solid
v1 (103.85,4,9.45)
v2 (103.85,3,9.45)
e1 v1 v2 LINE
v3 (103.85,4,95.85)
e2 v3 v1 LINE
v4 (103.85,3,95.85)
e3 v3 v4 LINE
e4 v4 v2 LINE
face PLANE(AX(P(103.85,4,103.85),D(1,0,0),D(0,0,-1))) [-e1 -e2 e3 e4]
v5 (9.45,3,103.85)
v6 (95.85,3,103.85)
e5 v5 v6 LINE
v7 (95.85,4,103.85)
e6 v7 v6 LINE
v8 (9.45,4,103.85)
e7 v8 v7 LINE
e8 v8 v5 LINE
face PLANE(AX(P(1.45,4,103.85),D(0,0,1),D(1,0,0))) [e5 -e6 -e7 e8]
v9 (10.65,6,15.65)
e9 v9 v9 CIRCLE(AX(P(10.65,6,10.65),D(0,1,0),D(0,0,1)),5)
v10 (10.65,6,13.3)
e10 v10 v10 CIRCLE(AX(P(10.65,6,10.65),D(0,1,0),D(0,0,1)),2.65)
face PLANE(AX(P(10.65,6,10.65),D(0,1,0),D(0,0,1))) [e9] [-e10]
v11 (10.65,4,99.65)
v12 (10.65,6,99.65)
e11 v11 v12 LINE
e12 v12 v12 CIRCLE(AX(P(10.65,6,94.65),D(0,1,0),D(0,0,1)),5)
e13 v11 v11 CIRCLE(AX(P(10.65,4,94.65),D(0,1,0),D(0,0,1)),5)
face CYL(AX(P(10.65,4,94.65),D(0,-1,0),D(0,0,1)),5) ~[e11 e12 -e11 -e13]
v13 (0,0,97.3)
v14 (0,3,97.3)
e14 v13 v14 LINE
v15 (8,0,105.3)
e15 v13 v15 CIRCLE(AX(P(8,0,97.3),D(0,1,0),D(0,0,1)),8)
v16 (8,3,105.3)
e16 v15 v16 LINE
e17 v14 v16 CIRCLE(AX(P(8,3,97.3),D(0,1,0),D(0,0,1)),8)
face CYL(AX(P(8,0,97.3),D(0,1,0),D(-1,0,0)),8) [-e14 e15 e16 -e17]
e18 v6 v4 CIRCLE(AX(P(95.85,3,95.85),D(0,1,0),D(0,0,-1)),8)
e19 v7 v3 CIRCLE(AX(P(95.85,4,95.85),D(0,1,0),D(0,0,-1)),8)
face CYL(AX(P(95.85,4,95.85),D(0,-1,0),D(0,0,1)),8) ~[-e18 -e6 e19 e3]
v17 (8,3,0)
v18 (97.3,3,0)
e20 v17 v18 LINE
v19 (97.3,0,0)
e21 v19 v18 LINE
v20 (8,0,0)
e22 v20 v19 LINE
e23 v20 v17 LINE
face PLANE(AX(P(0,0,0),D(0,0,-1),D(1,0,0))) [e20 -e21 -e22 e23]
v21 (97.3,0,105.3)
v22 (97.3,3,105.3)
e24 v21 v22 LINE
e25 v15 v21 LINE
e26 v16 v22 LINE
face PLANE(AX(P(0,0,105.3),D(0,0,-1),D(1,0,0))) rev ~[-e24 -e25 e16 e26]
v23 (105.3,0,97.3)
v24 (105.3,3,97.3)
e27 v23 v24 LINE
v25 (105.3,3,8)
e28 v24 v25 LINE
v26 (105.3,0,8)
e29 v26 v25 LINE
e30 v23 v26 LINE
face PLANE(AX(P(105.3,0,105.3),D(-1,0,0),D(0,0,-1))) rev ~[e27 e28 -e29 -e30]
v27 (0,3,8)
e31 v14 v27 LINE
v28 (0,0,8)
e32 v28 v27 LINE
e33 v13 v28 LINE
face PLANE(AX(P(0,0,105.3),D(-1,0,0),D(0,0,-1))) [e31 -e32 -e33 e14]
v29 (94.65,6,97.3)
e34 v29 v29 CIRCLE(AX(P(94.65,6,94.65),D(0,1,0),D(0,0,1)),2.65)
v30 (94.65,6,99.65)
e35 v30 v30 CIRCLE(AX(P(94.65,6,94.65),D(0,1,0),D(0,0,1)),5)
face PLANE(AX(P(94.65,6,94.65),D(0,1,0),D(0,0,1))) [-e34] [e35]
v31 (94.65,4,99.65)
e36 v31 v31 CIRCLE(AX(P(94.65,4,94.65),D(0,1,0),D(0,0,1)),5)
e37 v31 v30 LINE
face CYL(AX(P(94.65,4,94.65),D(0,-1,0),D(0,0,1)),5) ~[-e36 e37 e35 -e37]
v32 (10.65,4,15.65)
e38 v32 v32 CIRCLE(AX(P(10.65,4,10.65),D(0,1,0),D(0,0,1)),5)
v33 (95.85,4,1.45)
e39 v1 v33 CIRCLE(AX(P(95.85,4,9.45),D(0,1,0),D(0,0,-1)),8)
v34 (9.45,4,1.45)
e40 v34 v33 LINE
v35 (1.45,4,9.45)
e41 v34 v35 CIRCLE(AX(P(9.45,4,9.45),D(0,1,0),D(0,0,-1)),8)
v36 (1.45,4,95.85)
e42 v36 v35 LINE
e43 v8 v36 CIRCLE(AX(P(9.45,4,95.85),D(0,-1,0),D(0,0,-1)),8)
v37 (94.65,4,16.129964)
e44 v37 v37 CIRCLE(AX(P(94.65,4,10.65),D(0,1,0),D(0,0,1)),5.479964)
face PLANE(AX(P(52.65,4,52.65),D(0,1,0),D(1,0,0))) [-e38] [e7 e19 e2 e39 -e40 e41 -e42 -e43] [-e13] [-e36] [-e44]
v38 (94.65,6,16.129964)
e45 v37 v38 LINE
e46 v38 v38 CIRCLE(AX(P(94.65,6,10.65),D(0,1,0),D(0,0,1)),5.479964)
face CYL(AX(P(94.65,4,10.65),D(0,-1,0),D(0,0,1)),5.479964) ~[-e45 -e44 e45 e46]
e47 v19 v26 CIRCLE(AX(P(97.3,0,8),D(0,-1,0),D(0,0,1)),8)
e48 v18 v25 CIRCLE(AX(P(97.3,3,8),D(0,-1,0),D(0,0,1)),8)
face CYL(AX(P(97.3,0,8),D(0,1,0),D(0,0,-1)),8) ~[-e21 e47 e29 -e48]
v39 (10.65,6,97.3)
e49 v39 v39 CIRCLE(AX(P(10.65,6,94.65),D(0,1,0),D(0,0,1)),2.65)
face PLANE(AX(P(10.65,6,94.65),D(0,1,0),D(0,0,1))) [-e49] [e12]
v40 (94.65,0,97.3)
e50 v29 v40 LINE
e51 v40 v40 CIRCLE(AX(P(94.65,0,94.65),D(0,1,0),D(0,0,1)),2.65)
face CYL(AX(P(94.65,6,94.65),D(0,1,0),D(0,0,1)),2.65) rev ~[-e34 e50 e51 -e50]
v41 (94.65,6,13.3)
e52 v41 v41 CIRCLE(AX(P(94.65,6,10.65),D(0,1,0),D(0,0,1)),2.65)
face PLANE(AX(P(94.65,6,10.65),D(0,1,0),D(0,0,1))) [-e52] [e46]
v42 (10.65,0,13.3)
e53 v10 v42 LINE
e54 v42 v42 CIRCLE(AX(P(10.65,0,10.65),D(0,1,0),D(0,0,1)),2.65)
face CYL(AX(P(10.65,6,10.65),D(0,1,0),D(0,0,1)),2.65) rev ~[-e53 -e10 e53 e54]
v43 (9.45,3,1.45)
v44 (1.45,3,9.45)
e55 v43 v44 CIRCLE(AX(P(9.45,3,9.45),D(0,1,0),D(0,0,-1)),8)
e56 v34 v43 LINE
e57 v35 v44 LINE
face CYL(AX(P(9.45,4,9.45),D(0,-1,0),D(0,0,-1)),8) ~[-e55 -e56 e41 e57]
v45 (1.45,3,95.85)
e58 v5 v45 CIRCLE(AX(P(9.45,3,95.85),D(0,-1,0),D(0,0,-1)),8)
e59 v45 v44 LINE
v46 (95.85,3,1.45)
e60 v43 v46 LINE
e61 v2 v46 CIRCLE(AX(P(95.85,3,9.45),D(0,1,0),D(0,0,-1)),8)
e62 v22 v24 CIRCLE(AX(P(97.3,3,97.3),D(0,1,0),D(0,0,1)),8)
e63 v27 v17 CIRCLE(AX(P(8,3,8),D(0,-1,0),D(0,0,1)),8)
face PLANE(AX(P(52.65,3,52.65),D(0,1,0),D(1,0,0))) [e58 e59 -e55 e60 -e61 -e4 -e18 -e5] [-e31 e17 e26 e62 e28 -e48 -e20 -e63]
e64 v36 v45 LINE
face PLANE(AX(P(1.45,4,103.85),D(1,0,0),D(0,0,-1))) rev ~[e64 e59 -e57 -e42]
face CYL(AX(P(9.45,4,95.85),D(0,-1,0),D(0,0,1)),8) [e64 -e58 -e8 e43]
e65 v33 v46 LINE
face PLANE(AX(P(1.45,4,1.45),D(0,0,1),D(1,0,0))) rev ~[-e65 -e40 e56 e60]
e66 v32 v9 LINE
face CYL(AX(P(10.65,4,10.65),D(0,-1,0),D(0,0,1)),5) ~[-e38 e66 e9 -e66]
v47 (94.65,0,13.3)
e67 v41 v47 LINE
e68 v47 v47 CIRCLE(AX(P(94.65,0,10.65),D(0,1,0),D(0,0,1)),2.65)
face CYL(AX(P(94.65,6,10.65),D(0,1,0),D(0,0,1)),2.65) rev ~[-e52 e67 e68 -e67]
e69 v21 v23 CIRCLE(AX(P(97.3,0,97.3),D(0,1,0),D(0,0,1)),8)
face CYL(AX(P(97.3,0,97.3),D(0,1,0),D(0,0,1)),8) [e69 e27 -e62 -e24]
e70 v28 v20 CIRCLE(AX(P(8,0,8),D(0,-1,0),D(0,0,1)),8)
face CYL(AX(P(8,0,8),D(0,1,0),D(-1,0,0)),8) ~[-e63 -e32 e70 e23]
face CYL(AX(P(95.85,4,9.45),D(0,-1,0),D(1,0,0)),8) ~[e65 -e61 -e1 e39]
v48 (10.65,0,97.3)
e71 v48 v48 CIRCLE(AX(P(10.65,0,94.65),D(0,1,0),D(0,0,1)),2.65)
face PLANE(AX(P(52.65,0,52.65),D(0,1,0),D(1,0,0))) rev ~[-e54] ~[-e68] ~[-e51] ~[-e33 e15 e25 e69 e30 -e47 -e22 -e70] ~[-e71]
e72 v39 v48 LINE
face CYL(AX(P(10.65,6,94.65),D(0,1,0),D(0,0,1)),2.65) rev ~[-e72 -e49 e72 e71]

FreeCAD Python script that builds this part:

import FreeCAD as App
import Part
import Sketcher


def edges_at(feature, points):
    """Names of the edges that pass closest to the given points."""
    edges = feature.Shape.Edges
    near = lambda p: min(range(len(edges)), key=lambda i: edges[i].distToShape(Part.Vertex(*p))[0])
    return sorted({f"Edge{near(p) + 1}" for p in points})


def add_polygon(sketch, points):
    """Adds a closed chain of lines whose ends are joined by coincident constraints."""
    first, n = sketch.GeometryCount, len(points)
    for a, b in zip(points, points[1:] + points[:1]):
        sketch.addGeometry(Part.LineSegment(App.Vector(*a, 0), App.Vector(*b, 0)), False)
    for i in range(n):
        sketch.addConstraint(Sketcher.Constraint("Coincident", first + i, 2, first + (i + 1) % n, 1))

doc = App.newDocument("Part")
body = doc.addObject("PartDesign::Body", "Body")

sketch1 = body.newObject("Sketcher::SketchObject", "Sketch")
sketch1.AttachmentSupport = (doc.getObject("XZ_Plane"), [""])
sketch1.MapMode = "FlatFace"
add_polygon(sketch1, [(0, 0), (0, 105.3), (105.3, 105.3), (105.3, 0)])
sketch1.addConstraint([
    Sketcher.Constraint("Vertical", 0),
    Sketcher.Constraint("Horizontal", 1),
    Sketcher.Constraint("Vertical", 2),
    Sketcher.Constraint("Horizontal", 3),
    Sketcher.Constraint("Coincident", 3, 2, -1, 1),
    Sketcher.Constraint("Equal", 3, 0),
    Sketcher.Constraint("DistanceX", 1, 1, 1, 2, 105.3),
])
pad1 = body.newObject("PartDesign::Pad", "Pad")
pad1.Profile = sketch1
pad1.Length = 4
pad1.Reversed = True

sketch2 = body.newObject("Sketcher::SketchObject", "Sketch001")
sketch2.AttachmentSupport = (doc.getObject("XZ_Plane"), [""])
sketch2.MapMode = "FlatFace"
sketch2.AttachmentOffset = App.Placement(App.Vector(0, 0, -4), App.Rotation())
sketch2.addGeometry([
    Part.Circle(App.Vector(10.65, 10.65, 0), App.Vector(0, 0, 1), 5),
    Part.Circle(App.Vector(94.65, 10.65, 0), App.Vector(0, 0, 1), 5.479964),
    Part.Circle(App.Vector(10.65, 94.65, 0), App.Vector(0, 0, 1), 5),
    Part.Circle(App.Vector(94.65, 94.65, 0), App.Vector(0, 0, 1), 5),
], False)
sketch2.addConstraint([
    Sketcher.Constraint("Equal", 0, 2),
    Sketcher.Constraint("Equal", 2, 3),
    Sketcher.Constraint("Horizontal", 0, 3, 1, 3),
    Sketcher.Constraint("Horizontal", 2, 3, 3, 3),
    Sketcher.Constraint("Vertical", 0, 3, 2, 3),
    Sketcher.Constraint("Vertical", 1, 3, 3, 3),
    Sketcher.Constraint("Diameter", 0, 10.0),
    Sketcher.Constraint("DistanceX", 0, 3, 1, 3, 84.0),
    Sketcher.Constraint("DistanceY", 0, 3, 2, 3, 84.0),
    Sketcher.Constraint("DistanceX", -1, 1, 0, 3, 10.65),
    Sketcher.Constraint("DistanceY", -1, 1, 0, 3, 10.65),
    Sketcher.Constraint("Diameter", 1, 10.959927),
])
pad2 = body.newObject("PartDesign::Pad", "Pad001")
pad2.Profile = sketch2
pad2.Length = 2
pad2.Reversed = True

sketch3 = body.newObject("Sketcher::SketchObject", "Sketch002")
sketch3.AttachmentSupport = (doc.getObject("XZ_Plane"), [""])
sketch3.MapMode = "FlatFace"
sketch3.AttachmentOffset = App.Placement(App.Vector(0, 0, -6), App.Rotation())
sketch3.addGeometry(Part.Circle(App.Vector(10.65, 10.65, 0), App.Vector(0, 0, 1), 2.65), False)
sketch3.addConstraint([
    Sketcher.Constraint("Diameter", 0, 5.3),
    Sketcher.Constraint("DistanceX", -1, 1, 0, 3, 10.65),
    Sketcher.Constraint("DistanceY", -1, 1, 0, 3, 10.65),
])
pocket1 = body.newObject("PartDesign::Pocket", "Pocket")
pocket1.Profile = sketch3
pocket1.Type = "UpToFirst"
pocket1.Reversed = True

sketch4 = body.newObject("Sketcher::SketchObject", "Sketch003")
sketch4.AttachmentSupport = (doc.getObject("XZ_Plane"), [""])
sketch4.MapMode = "FlatFace"
sketch4.AttachmentOffset = App.Placement(App.Vector(0, 0, -6), App.Rotation())
sketch4.addGeometry(Part.Circle(App.Vector(94.65, 10.65, 0), App.Vector(0, 0, 1), 2.65), False)
sketch4.addConstraint([
    Sketcher.Constraint("Diameter", 0, 5.3),
    Sketcher.Constraint("DistanceX", -1, 1, 0, 3, 94.65),
    Sketcher.Constraint("DistanceY", -1, 1, 0, 3, 10.65),
])
pocket2 = body.newObject("PartDesign::Pocket", "Pocket001")
pocket2.Profile = sketch4
pocket2.Type = "UpToFirst"
pocket2.Reversed = True

sketch5 = body.newObject("Sketcher::SketchObject", "Sketch004")
sketch5.AttachmentSupport = (doc.getObject("XZ_Plane"), [""])
sketch5.MapMode = "FlatFace"
sketch5.AttachmentOffset = App.Placement(App.Vector(0, 0, -6), App.Rotation())
sketch5.addGeometry(Part.Circle(App.Vector(94.65, 94.65, 0), App.Vector(0, 0, 1), 2.65), False)
sketch5.addConstraint([
    Sketcher.Constraint("Diameter", 0, 5.3),
    Sketcher.Constraint("DistanceX", -1, 1, 0, 3, 94.65),
    Sketcher.Constraint("DistanceY", -1, 1, 0, 3, 94.65),
])
pocket3 = body.newObject("PartDesign::Pocket", "Pocket002")
pocket3.Profile = sketch5
pocket3.Type = "UpToFirst"
pocket3.Reversed = True

sketch6 = body.newObject("Sketcher::SketchObject", "Sketch005")
sketch6.AttachmentSupport = (doc.getObject("XZ_Plane"), [""])
sketch6.MapMode = "FlatFace"
sketch6.AttachmentOffset = App.Placement(App.Vector(0, 0, -6), App.Rotation())
sketch6.addGeometry(Part.Circle(App.Vector(10.65, 94.65, 0), App.Vector(0, 0, 1), 2.65), False)
sketch6.addConstraint([
    Sketcher.Constraint("Diameter", 0, 5.3),
    Sketcher.Constraint("DistanceX", -1, 1, 0, 3, 10.65),
    Sketcher.Constraint("DistanceY", -1, 1, 0, 3, 94.65),
])
pocket4 = body.newObject("PartDesign::Pocket", "Pocket003")
pocket4.Profile = sketch6
pocket4.Type = "UpToFirst"
pocket4.Reversed = True

sketch7 = body.newObject("Sketcher::SketchObject", "Sketch006")
sketch7.AttachmentSupport = (doc.getObject("XZ_Plane"), [""])
sketch7.MapMode = "FlatFace"
sketch7.AttachmentOffset = App.Placement(App.Vector(0, 0, -4), App.Rotation())
add_polygon(sketch7, [(0, 0), (0, 105.3), (105.3, 105.3), (105.3, 0)])
add_polygon(sketch7, [(103.85, 103.85), (1.45, 103.85), (1.45, 1.45), (103.85, 1.45)])
sketch7.addConstraint([
    Sketcher.Constraint("Vertical", 0),
    Sketcher.Constraint("Horizontal", 1),
    Sketcher.Constraint("Vertical", 2),
    Sketcher.Constraint("Horizontal", 3),
    Sketcher.Constraint("Horizontal", 4),
    Sketcher.Constraint("Vertical", 5),
    Sketcher.Constraint("Horizontal", 6),
    Sketcher.Constraint("Vertical", 7),
    Sketcher.Constraint("Coincident", 3, 2, -1, 1),
    Sketcher.Constraint("Equal", 3, 0),
    Sketcher.Constraint("Equal", 6, 5),
    Sketcher.Constraint("DistanceX", 1, 1, 1, 2, 105.3),
    Sketcher.Constraint("DistanceX", 4, 2, 4, 1, 102.4),
    Sketcher.Constraint("DistanceX", -1, 1, 4, 2, 1.45),
    Sketcher.Constraint("DistanceY", -1, 1, 4, 2, 103.85),
])
pocket5 = body.newObject("PartDesign::Pocket", "Pocket004")
pocket5.Profile = sketch7
pocket5.Length = 1
pocket5.Reversed = True
doc.recompute()

fillet = body.newObject("PartDesign::Fillet", "Fillet")
fillet.Base = (pocket5, edges_at(pocket5, [
    (0, 1.5, 0),
    (105.3, 1.5, 0),
    (105.3, 1.5, 105.3),
    (0, 1.5, 105.3),
    (1.45, 3.5, 1.45),
    (103.85, 3.5, 1.45),
    (103.85, 3.5, 103.85),
    (1.45, 3.5, 103.85),
]))
fillet.Radius = 8

doc.recompute()
